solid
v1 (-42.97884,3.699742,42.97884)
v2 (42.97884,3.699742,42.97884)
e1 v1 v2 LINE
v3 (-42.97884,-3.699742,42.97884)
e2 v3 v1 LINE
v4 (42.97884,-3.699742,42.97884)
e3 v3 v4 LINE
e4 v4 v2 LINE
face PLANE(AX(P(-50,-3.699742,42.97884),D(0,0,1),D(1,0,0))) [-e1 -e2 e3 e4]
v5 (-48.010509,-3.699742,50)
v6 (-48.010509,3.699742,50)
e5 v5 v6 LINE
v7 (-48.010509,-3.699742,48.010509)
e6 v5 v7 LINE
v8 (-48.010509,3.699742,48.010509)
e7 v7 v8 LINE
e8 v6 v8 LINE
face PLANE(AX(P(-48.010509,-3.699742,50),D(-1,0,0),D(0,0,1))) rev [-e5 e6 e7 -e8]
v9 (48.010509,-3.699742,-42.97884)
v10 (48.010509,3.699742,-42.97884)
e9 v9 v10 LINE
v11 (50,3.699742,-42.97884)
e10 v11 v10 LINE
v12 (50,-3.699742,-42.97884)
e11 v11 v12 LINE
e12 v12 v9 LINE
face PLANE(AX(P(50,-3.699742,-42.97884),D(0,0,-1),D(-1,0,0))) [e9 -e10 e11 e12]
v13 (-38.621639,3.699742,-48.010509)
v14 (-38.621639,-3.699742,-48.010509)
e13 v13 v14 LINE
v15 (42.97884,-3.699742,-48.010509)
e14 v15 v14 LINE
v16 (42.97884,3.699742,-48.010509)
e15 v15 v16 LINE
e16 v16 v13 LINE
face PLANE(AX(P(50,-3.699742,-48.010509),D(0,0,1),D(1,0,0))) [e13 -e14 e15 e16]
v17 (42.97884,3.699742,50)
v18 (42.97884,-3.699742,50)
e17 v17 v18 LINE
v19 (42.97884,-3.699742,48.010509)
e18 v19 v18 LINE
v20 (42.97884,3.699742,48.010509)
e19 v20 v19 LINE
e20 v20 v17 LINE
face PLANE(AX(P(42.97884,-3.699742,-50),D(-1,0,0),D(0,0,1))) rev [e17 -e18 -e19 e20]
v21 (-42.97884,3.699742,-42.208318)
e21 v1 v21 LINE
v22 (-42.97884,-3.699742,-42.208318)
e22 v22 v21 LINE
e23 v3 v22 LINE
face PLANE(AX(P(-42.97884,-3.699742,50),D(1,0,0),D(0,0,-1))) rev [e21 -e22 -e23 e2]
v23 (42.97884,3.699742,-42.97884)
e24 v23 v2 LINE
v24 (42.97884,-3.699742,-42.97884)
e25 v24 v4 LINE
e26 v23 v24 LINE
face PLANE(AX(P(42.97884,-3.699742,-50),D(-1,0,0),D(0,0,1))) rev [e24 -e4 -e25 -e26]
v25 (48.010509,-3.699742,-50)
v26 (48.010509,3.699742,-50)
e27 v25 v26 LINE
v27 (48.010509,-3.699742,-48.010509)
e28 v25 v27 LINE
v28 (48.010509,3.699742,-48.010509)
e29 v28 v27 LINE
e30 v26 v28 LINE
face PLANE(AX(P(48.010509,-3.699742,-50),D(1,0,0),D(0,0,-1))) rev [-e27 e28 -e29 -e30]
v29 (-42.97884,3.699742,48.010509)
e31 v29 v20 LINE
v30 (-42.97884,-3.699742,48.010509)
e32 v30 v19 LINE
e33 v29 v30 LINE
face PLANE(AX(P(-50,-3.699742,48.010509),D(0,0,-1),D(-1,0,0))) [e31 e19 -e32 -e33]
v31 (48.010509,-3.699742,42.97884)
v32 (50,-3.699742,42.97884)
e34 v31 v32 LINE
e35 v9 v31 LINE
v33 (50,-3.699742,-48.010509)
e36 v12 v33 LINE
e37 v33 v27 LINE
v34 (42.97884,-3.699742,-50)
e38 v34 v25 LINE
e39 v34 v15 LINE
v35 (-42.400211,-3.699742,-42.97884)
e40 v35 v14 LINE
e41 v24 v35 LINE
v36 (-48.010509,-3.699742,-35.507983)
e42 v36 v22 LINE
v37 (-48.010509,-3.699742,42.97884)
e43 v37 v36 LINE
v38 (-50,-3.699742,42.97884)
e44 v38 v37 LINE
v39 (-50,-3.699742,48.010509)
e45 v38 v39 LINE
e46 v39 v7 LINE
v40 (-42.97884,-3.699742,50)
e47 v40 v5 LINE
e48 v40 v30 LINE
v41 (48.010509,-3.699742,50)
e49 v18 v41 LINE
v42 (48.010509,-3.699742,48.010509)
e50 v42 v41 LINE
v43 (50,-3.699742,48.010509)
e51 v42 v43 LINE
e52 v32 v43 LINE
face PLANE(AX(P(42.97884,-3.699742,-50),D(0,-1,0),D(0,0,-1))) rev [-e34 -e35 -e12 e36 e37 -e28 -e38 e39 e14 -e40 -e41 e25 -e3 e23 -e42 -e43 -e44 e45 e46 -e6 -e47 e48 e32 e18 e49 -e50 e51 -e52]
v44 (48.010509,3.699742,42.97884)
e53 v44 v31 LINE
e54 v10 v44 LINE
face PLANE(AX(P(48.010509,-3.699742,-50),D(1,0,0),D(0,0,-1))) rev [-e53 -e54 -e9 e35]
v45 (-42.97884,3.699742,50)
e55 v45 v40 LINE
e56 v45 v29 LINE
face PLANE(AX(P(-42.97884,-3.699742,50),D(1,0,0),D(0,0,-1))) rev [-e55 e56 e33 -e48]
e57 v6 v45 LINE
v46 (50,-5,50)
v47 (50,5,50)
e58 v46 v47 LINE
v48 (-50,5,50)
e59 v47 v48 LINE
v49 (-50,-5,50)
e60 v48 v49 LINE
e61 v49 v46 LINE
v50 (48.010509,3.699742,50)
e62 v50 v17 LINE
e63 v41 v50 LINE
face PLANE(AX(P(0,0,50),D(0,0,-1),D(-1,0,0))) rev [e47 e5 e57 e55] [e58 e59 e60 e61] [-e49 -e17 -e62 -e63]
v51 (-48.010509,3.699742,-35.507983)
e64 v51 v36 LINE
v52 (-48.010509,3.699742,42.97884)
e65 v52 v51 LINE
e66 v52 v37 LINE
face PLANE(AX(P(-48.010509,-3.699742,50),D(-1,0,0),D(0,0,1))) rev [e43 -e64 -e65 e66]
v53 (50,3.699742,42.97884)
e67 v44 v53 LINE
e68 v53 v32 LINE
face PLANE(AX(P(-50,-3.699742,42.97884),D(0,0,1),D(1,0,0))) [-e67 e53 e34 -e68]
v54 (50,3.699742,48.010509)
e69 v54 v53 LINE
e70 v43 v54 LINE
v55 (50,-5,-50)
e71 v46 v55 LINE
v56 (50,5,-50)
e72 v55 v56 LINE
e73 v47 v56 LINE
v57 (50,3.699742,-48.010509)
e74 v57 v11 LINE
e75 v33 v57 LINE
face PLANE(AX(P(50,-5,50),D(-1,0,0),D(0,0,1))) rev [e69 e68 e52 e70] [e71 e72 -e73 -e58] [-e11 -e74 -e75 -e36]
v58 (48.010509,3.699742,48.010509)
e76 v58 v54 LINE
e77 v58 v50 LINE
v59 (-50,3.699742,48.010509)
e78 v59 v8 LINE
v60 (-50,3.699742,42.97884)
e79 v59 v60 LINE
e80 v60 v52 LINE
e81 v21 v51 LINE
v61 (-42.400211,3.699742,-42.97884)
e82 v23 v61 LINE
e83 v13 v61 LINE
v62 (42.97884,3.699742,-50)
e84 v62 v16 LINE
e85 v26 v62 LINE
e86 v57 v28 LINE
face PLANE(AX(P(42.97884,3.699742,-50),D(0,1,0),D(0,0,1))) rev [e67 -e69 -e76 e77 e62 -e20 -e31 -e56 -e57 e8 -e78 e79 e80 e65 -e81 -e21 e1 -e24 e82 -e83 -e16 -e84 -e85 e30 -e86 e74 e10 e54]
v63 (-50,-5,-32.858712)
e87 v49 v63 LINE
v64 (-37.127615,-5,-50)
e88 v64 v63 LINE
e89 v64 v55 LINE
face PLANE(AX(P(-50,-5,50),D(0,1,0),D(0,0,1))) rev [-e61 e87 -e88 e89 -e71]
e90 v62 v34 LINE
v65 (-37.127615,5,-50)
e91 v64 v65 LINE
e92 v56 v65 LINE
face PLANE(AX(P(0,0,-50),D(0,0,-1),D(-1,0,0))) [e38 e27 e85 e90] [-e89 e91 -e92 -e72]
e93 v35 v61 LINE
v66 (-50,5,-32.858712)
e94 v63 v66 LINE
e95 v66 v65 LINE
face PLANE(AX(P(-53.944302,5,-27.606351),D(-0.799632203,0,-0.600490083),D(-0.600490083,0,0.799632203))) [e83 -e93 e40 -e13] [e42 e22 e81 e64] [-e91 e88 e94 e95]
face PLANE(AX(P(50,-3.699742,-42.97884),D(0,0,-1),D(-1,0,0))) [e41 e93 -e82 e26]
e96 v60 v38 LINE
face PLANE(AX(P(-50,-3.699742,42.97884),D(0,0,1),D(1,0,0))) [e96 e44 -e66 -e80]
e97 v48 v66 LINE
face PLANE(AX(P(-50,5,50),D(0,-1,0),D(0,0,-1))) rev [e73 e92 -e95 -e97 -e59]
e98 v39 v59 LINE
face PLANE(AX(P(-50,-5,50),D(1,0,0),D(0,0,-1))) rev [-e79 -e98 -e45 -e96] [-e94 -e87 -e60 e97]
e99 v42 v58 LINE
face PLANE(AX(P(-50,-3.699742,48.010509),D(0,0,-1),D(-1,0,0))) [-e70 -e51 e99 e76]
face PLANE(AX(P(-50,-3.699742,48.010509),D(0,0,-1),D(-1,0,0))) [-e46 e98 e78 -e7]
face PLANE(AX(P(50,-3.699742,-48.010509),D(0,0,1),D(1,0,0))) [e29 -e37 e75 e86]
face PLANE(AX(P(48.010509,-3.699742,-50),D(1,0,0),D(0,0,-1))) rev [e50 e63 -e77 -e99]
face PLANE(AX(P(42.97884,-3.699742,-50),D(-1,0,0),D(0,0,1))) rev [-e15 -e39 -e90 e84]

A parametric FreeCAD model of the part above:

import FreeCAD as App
import Part
import Sketcher


def add_polygon(sketch, points):
    """Adds a closed chain of lines whose ends are joined by coincident constraints."""
    first, n = sketch.GeometryCount, len(points)
    for a, b in zip(points, points[1:] + points[:1]):
        sketch.addGeometry(Part.LineSegment(App.Vector(*a, 0), App.Vector(*b, 0)), False)
    for i in range(n):
        sketch.addConstraint(Sketcher.Constraint("Coincident", first + i, 2, first + (i + 1) % n, 1))

doc = App.newDocument("Part")
body = doc.addObject("PartDesign::Body", "Body")

sketch1 = body.newObject("Sketcher::SketchObject", "Sketch")
sketch1.AttachmentSupport = (doc.getObject("XY_Plane"), [""])
sketch1.MapMode = "FlatFace"
add_polygon(sketch1, [(-50, 5), (-50, -5), (50, -5), (50, 5)])
sketch1.addConstraint(Sketcher.Constraint("Vertical", 0))
sketch1.addConstraint(Sketcher.Constraint("Horizontal", 1))
sketch1.addConstraint(Sketcher.Constraint("Vertical", 2))
sketch1.addConstraint(Sketcher.Constraint("Horizontal", 3))
sketch1.addConstraint(Sketcher.Constraint("Symmetric", 0, 2, 2, 2, -1, 1))
sketch1.addConstraint(Sketcher.Constraint("DistanceX", 1, 1, 1, 2, 100.0))
sketch1.addConstraint(Sketcher.Constraint("DistanceY", 0, 2, 0, 1, 10.0))
pad1 = body.newObject("PartDesign::Pad", "Pad")
pad1.Profile = sketch1
pad1.Length = 100
pad1.Midplane = True

sketch2 = body.newObject("Sketcher::SketchObject", "Sketch001")
sketch2.AttachmentSupport = (doc.getObject("XY_Plane"), [""])
sketch2.MapMode = "FlatFace"
sketch2.AttachmentOffset = App.Placement(App.Vector(0, 0, 50), App.Rotation())
add_polygon(sketch2, [(43, 4), (43, -4), (48, -4), (48, 4)])
sketch2.addConstraint(Sketcher.Constraint("Vertical", 0))
sketch2.addConstraint(Sketcher.Constraint("Horizontal", 1))
sketch2.addConstraint(Sketcher.Constraint("Vertical", 2))
sketch2.addConstraint(Sketcher.Constraint("Horizontal", 3))
sketch2.addConstraint(Sketcher.Constraint("DistanceX", 1, 1, 1, 2, 5.031669))
sketch2.addConstraint(Sketcher.Constraint("DistanceY", 0, 2, 0, 1, 7.399485))
sketch2.addConstraint(Sketcher.Constraint("DistanceX", -1, 1, 0, 2, 42.97884))
sketch2.addConstraint(Sketcher.Constraint("DistanceY", 0, 2, -1, 1, 3.699742))
pocket1 = body.newObject("PartDesign::Pocket", "Pocket")
pocket1.Profile = sketch2
pocket1.Type = "ThroughAll"
doc.recompute()

datumplane = body.newObject("PartDesign::Plane", "DatumPlane")
datumplane.Placement = App.Placement(App.Vector(0, 0, 0), App.Rotation(App.Vector(-0.707106781, 0, -0.707106781), App.Vector(0, -1, 0), App.Vector(-0.707106781, 0, 0.707106781), "ZXY"))
mirrored = body.newObject("PartDesign::Mirrored", "Mirrored")
mirrored.Originals = [pocket1]
mirrored.MirrorPlane = (datumplane, [""])
body.Tip = mirrored
doc.recompute()

datumplane2 = body.newObject("PartDesign::Plane", "DatumPlane001")
datumplane2.Placement = App.Placement(App.Vector(0, 0, 0), App.Rotation(App.Vector(0.707106781, 0, -0.707106781), App.Vector(0, -1, 0), App.Vector(-0.707106781, 0, -0.707106781), "ZXY"))
mirrored2 = body.newObject("PartDesign::Mirrored", "Mirrored001")
mirrored2.Originals = [pocket1]
mirrored2.MirrorPlane = (datumplane2, [""])
body.Tip = mirrored2

sketch3 = body.newObject("Sketcher::SketchObject", "Sketch002")
sketch3.AttachmentSupport = (doc.getObject("XY_Plane"), [""])
sketch3.MapMode = "FlatFace"
sketch3.AttachmentOffset = App.Placement(App.Vector(0, 0, -50), App.Rotation())
add_polygon(sketch3, [(-43, 4), (-43, -4), (-48, -4), (-48, 4)])
sketch3.addConstraint(Sketcher.Constraint("Vertical", 0))
sketch3.addConstraint(Sketcher.Constraint("Horizontal", 1))
sketch3.addConstraint(Sketcher.Constraint("Vertical", 2))
sketch3.addConstraint(Sketcher.Constraint("Horizontal", 3))
sketch3.addConstraint(Sketcher.Constraint("DistanceX", 1, 2, 1, 1, 5.031669))
sketch3.addConstraint(Sketcher.Constraint("DistanceY", 0, 2, 0, 1, 7.399485))
sketch3.addConstraint(Sketcher.Constraint("DistanceX", 0, 2, -1, 1, 42.97884))
sketch3.addConstraint(Sketcher.Constraint("DistanceY", 0, 2, -1, 1, 3.699742))
pocket2 = body.newObject("PartDesign::Pocket", "Pocket001")
pocket2.Profile = sketch3
pocket2.Type = "ThroughAll"
pocket2.Reversed = True

sketch4 = body.newObject("Sketcher::SketchObject", "Sketch003")
sketch4.AttachmentSupport = (doc.getObject("XZ_Plane"), [""])
sketch4.MapMode = "FlatFace"
sketch4.AttachmentOffset = App.Placement(App.Vector(0, 0, -5), App.Rotation())
add_polygon(sketch4, [(-226, 202), (-54, -28), (-25, -67), (148, -296), (-311, -640), (-685, -143)])
sketch4.addConstraint(Sketcher.Constraint("Parallel", 0, 1))
sketch4.addConstraint(Sketcher.Constraint("Parallel", 1, 2))
sketch4.addConstraint(Sketcher.Constraint("Perpendicular", 2, 3))
sketch4.addConstraint(Sketcher.Constraint("Perpendicular", 3, 4))
sketch4.addConstraint(Sketcher.Constraint("Perpendicular", 4, 5))
sketch4.addConstraint(Sketcher.Constraint("Equal", 0, 2))
sketch4.addConstraint(Sketcher.Constraint("DistanceX", 0, 2, -1, 1, 53.944302))
sketch4.addConstraint(Sketcher.Constraint("DistanceY", 3, 2, 5, 2, 842.255101))
sketch4.addConstraint(Sketcher.Constraint("Distance", 4, 622.44771))
sketch4.addConstraint(Sketcher.Constraint("DistanceY", 0, 2, -1, 1, 27.606351))
sketch4.addConstraint(Sketcher.Constraint("DistanceY", 1, 2, -1, 1, 66.553689))
sketch4.addConstraint(Sketcher.Constraint("DistanceX", -1, 1, 2, 2, 147.566441))
pocket3 = body.newObject("PartDesign::Pocket", "Pocket002")
pocket3.Profile = sketch4
pocket3.Type = "ThroughAll"
pocket3.Reversed = True

doc.recompute()
